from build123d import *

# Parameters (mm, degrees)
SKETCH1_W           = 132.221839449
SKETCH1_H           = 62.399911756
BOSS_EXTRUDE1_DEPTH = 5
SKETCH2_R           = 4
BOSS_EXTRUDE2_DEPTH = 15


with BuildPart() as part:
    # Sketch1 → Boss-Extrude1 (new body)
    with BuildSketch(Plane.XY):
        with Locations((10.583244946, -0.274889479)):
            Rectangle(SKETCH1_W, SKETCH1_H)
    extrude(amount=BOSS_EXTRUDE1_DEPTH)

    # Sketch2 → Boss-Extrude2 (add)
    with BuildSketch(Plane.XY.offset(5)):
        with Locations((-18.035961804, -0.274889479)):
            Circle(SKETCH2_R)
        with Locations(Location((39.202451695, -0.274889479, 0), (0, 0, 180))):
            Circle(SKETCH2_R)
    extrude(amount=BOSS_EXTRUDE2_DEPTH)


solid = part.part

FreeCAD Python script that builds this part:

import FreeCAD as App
import Part
import Sketcher

V = App.Vector


def add_polygon(sketch, points):
    """Adds a closed chain of lines whose ends are joined by coincident constraints."""
    first, n = sketch.GeometryCount, len(points)
    for a, b in zip(points, points[1:] + points[:1]):
        sketch.addGeometry(Part.LineSegment(App.Vector(*a, 0), App.Vector(*b, 0)), False)
    for i in range(n):
        sketch.addConstraint(Sketcher.Constraint("Coincident", first + i, 2, first + (i + 1) % n, 1))

doc = App.newDocument("Part")
body = doc.addObject("PartDesign::Body", "Body")

sketch1 = doc.addObject("Sketcher::SketchObject", "Sketch")
body.addObject(sketch1)
sketch1.AttachmentSupport = (doc.XY_Plane, [""])
sketch1.MapMode = "FlatFace"
add_polygon(sketch1, [(-56, 31), (-56, -31), (77, -31), (77, 31)])
sketch1.addConstraint([
    Sketcher.Constraint("Vertical", 0),
    Sketcher.Constraint("Horizontal", 1),
    Sketcher.Constraint("Vertical", 2),
    Sketcher.Constraint("Horizontal", 3),
    Sketcher.Constraint("DistanceX", 1, 1, 1, 2, 132.221839),
    Sketcher.Constraint("DistanceY", 0, 2, 0, 1, 62.399912),
    Sketcher.Constraint("DistanceX", 0, 2, -1, 1, 55.527675),
    Sketcher.Constraint("DistanceY", 0, 2, -1, 1, 31.474845),
])
pad1 = doc.addObject("PartDesign::Pad", "Pad")
body.addObject(pad1)
pad1.Profile = sketch1
pad1.Length = 5

sketch2 = doc.addObject("Sketcher::SketchObject", "Sketch001")
body.addObject(sketch2)
sketch2.AttachmentSupport = (doc.XY_Plane, [""])
sketch2.MapMode = "FlatFace"
sketch2.AttachmentOffset = App.Placement(V(0, 0, 5), App.Rotation())
sketch2.addGeometry([
    Part.Circle(V(-18, -0.3, 0), V(0, 0, 1), 4),
    Part.Circle(V(39.2, -0.3, 0), V(0, 0, 1), 4),
], False)
sketch2.addConstraint([
    Sketcher.Constraint("Equal", 0, 1),
    Sketcher.Constraint("Horizontal", 0, 3, 1, 3),
    Sketcher.Constraint("Diameter", 0, 8.0),
    Sketcher.Constraint("DistanceX", 0, 3, -1, 1, 18.035962),
    Sketcher.Constraint("DistanceY", 0, 3, -1, 1, 0.274889),
    Sketcher.Constraint("DistanceX", -1, 1, 1, 3, 39.202452),
])
pad2 = doc.addObject("PartDesign::Pad", "Pad001")
body.addObject(pad2)
pad2.Profile = sketch2
pad2.Length = 15

doc.recompute()
